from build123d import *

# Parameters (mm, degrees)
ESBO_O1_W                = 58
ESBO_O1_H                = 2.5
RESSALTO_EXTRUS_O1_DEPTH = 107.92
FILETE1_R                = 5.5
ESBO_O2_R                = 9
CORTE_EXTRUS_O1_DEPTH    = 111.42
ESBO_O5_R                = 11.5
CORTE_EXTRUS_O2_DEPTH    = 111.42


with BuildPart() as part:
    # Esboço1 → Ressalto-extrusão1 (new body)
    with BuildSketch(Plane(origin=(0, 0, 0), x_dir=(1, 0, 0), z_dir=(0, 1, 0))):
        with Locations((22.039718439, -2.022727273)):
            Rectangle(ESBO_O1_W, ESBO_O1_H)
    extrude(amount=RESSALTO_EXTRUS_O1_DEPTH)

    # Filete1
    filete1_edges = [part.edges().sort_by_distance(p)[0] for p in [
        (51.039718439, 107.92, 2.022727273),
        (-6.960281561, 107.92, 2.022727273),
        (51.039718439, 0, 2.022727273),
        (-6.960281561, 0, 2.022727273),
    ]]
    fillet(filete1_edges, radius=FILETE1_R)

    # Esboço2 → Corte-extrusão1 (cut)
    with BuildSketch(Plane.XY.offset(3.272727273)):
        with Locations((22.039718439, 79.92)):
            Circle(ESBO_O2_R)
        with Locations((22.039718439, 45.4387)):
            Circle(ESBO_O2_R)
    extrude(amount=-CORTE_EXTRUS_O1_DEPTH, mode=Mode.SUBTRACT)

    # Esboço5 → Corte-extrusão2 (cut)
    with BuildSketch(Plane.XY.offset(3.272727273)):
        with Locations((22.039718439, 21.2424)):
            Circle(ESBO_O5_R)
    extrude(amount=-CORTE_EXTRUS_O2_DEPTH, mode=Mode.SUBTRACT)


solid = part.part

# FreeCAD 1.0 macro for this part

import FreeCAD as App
import Part
import Sketcher
from FreeCAD import Vector


def edges_at(feature, points):
    """Names of the edges that pass closest to the given points."""
    edges = feature.Shape.Edges
    near = lambda p: min(range(len(edges)), key=lambda i: edges[i].distToShape(Part.Vertex(*p))[0])
    return sorted({f"Edge{near(p) + 1}" for p in points})

doc = App.newDocument("Part")
params = doc.addObject("Spreadsheet::Sheet", "Params")
for row, (alias, value) in enumerate([
    ("sketch1_width", "58 mm"),
    ("sketch1_height", "2.5 mm"),
    ("pad1_length", "107.92 mm"),
    ("fillet_radius", "5.5 mm"),
    ("sketch2_diameter", "18 mm"),
    ("pocket1_length", "111.42 mm"),
    ("sketch3_diameter", "23 mm"),
    ("pocket2_length", "111.42 mm"),
], start=1):
    params.set(f"A{row}", alias)
    params.set(f"B{row}", "=" + value)
    params.setAlias(f"B{row}", alias)

body = doc.addObject("PartDesign::Body", "Body")

sketch1 = doc.addObject("Sketcher::SketchObject", "Sketch")
body.addObject(sketch1)
sketch1.AttachmentSupport = (doc.XZ_Plane, [""])
sketch1.MapMode = "FlatFace"
sketch1.addGeometry(Part.LineSegment(Vector(-7, 0.8, 0), Vector(-7, 3.3, 0)), False)
sketch1.addGeometry(Part.LineSegment(Vector(-7, 3.3, 0), Vector(51, 3.3, 0)), False)
sketch1.addGeometry(Part.LineSegment(Vector(51, 3.3, 0), Vector(51, 0.8, 0)), False)
sketch1.addGeometry(Part.LineSegment(Vector(51, 0.8, 0), Vector(-7, 0.8, 0)), False)
sketch1.addConstraint(Sketcher.Constraint("Coincident", 0, 2, 1, 1))
sketch1.addConstraint(Sketcher.Constraint("Coincident", 1, 2, 2, 1))
sketch1.addConstraint(Sketcher.Constraint("Coincident", 2, 2, 3, 1))
sketch1.addConstraint(Sketcher.Constraint("Coincident", 3, 2, 0, 1))
sketch1.addConstraint(Sketcher.Constraint("Vertical", 0))
sketch1.addConstraint(Sketcher.Constraint("Horizontal", 1))
sketch1.addConstraint(Sketcher.Constraint("Vertical", 2))
sketch1.addConstraint(Sketcher.Constraint("Horizontal", 3))
sketch1.addConstraint(Sketcher.Constraint("DistanceX", 1, 1, 1, 2, 58.0))
sketch1.addConstraint(Sketcher.Constraint("DistanceY", 0, 1, 0, 2, 2.5))
sketch1.addConstraint(Sketcher.Constraint("DistanceX", 0, 2, -1, 1, 6.960282))
sketch1.addConstraint(Sketcher.Constraint("DistanceY", -1, 1, 0, 2, 3.272727))
sketch1.setExpression("Constraints[8]", "Params.sketch1_width")
sketch1.setExpression("Constraints[9]", "Params.sketch1_height")
pad1 = doc.addObject("PartDesign::Pad", "Pad")
body.addObject(pad1)
pad1.Profile = sketch1
pad1.setExpression("Length", "Params.pad1_length")
pad1.Reversed = True
doc.recompute()

fillet = doc.addObject("PartDesign::Fillet", "Fillet")
body.addObject(fillet)
fillet.Base = (pad1, edges_at(pad1, [
    (51.04, 107.92, 2.023),
    (-6.96, 107.92, 2.023),
    (51.04, 0, 2.023),
    (-6.96, 0, 2.023),
]))
fillet.setExpression("Radius", "Params.fillet_radius")

sketch2 = doc.addObject("Sketcher::SketchObject", "Sketch001")
body.addObject(sketch2)
sketch2.AttachmentSupport = (doc.XY_Plane, [""])
sketch2.MapMode = "FlatFace"
sketch2.AttachmentOffset = App.Placement(Vector(0, 0, 3.272727), App.Rotation())
sketch2.addGeometry(Part.Circle(Vector(22, 80, 0), Vector(0, 0, 1), 9), False)
sketch2.addGeometry(Part.Circle(Vector(22, 45, 0), Vector(0, 0, 1), 9), False)
sketch2.addConstraint(Sketcher.Constraint("Equal", 0, 1))
sketch2.addConstraint(Sketcher.Constraint("Vertical", 0, 3, 1, 3))
sketch2.addConstraint(Sketcher.Constraint("Diameter", 0, 18.0))
sketch2.addConstraint(Sketcher.Constraint("DistanceY", -1, 1, 0, 3, 79.92))
sketch2.addConstraint(Sketcher.Constraint("DistanceY", -1, 1, 1, 3, 45.4387))
sketch2.addConstraint(Sketcher.Constraint("DistanceX", -1, 1, 0, 3, 22.039718))
sketch2.setExpression("Constraints[2]", "Params.sketch2_diameter")
pocket1 = doc.addObject("PartDesign::Pocket", "Pocket")
body.addObject(pocket1)
pocket1.Profile = sketch2
pocket1.setExpression("Length", "Params.pocket1_length")

sketch3 = doc.addObject("Sketcher::SketchObject", "Sketch002")
body.addObject(sketch3)
sketch3.AttachmentSupport = (doc.XY_Plane, [""])
sketch3.MapMode = "FlatFace"
sketch3.AttachmentOffset = App.Placement(Vector(0, 0, 3.272727), App.Rotation())
sketch3.addGeometry(Part.Circle(Vector(22, 21, 0), Vector(0, 0, 1), 12), False)
sketch3.addConstraint(Sketcher.Constraint("Diameter", 0, 23.0))
sketch3.addConstraint(Sketcher.Constraint("DistanceY", -1, 1, 0, 3, 21.2424))
sketch3.addConstraint(Sketcher.Constraint("DistanceX", -1, 1, 0, 3, 22.039718))
sketch3.setExpression("Constraints[0]", "Params.sketch3_diameter")
pocket2 = doc.addObject("PartDesign::Pocket", "Pocket001")
body.addObject(pocket2)
pocket2.Profile = sketch3
pocket2.setExpression("Length", "Params.pocket2_length")

doc.recompute()
